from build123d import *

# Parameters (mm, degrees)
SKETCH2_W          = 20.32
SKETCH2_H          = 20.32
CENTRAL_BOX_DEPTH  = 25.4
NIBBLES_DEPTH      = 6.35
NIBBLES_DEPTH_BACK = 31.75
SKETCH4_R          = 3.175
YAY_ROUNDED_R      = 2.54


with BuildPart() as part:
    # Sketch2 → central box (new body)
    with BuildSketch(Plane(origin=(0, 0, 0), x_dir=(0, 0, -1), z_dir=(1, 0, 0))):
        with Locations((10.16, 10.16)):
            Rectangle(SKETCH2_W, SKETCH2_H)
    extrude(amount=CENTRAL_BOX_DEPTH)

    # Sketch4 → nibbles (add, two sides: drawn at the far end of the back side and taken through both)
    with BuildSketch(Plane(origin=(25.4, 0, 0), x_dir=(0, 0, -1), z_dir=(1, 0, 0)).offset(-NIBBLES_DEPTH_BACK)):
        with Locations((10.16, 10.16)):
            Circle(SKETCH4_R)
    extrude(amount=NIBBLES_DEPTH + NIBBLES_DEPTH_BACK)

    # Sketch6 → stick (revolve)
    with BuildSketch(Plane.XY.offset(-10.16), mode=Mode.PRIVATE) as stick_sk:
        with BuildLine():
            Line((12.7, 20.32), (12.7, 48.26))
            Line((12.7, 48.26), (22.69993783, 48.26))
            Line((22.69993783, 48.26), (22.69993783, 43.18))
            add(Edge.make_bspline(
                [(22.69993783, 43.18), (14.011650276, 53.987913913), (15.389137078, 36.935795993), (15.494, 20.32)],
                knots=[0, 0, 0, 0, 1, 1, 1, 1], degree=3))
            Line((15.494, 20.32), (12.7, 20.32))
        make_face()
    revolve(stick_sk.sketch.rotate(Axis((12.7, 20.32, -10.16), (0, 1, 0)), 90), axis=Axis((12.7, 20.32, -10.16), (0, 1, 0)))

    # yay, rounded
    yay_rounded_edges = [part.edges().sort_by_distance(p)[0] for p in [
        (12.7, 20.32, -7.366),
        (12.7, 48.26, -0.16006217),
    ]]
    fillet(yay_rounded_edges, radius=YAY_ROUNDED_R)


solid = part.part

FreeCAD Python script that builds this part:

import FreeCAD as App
import Part
import Sketcher

V = App.Vector
Q = App.Units.Quantity


def edges_at(feature, points):
    """Names of the edges that pass closest to the given points."""
    edges = feature.Shape.Edges
    near = lambda p: min(range(len(edges)), key=lambda i: edges[i].distToShape(Part.Vertex(*p))[0])
    return sorted({f"Edge{near(p) + 1}" for p in points})


def add_polygon(sketch, points):
    """Adds a closed chain of lines whose ends are joined by coincident constraints."""
    first, n = sketch.GeometryCount, len(points)
    for a, b in zip(points, points[1:] + points[:1]):
        sketch.addGeometry(Part.LineSegment(App.Vector(*a, 0), App.Vector(*b, 0)), False)
    for i in range(n):
        sketch.addConstraint(Sketcher.Constraint("Coincident", first + i, 2, first + (i + 1) % n, 1))

doc = App.newDocument("Part")
params = doc.addObject("Spreadsheet::Sheet", "Params")
for row, (alias, value) in enumerate([
    ("sketch1_width", "0.8 in"),
    ("pad1_length", "1 in"),
    ("sketch2_diameter", "0.25 in"),
    ("pad2_length", "0.25 in"),
    ("pad2_length2", "1.25 in"),
    ("sketch3_height", "1.1 in"),
    ("sketch3_width", "0.11 in"),
    ("revolution_angle", "360 deg"),
    ("fillet_radius", "0.1 in"),
], start=1):
    params.set(f"A{row}", alias)
    params.set(f"B{row}", "=" + value)
    params.setAlias(f"B{row}", alias)

body = doc.addObject("PartDesign::Body", "Body")

# Sketch on YZ plane
sketch1 = body.newObject("Sketcher::SketchObject", "Sketch")
sketch1.AttachmentSupport = (doc.getObject("YZ_Plane"), [""])
sketch1.MapMode = "FlatFace"
add_polygon(sketch1, [(20, 0), (0, 0), (0, -20), (20, -20)])  # lines 0-3
sketch1.addConstraint([
    Sketcher.Constraint("Horizontal", 0),
    Sketcher.Constraint("Vertical", 1),
    Sketcher.Constraint("Horizontal", 2),
    Sketcher.Constraint("Vertical", 3),
    Sketcher.Constraint("Coincident", 0, 2, -1, 1),
    Sketcher.Constraint("Equal", 2, 1),
    Sketcher.Constraint("DistanceX", 0, 2, 0, 1, Q("0.8 in")),
])
sketch1.setExpression("Constraints[10]", "Params.sketch1_width")
pad1 = body.newObject("PartDesign::Pad", "Pad")
pad1.Profile = sketch1
pad1.setExpression("Length", "Params.pad1_length")

# Sketch on YZ plane
sketch2 = body.newObject("Sketcher::SketchObject", "Sketch001")
sketch2.AttachmentSupport = (doc.getObject("YZ_Plane"), [""])
sketch2.MapMode = "FlatFace"
sketch2.AttachmentOffset = App.Placement(V(0, 0, 1 * 25.4), App.Rotation())
sketch2.addGeometry(Part.Circle(V(10.2, -10.2, 0), V(0, 0, 1), 3.2), False)
sketch2.addConstraint([
    Sketcher.Constraint("Diameter", 0, Q("0.25 in")),
    Sketcher.Constraint("DistanceX", -1, 1, 0, 3, Q("0.4 in")),
    Sketcher.Constraint("DistanceY", 0, 3, -1, 1, Q("0.4 in")),
])
sketch2.setExpression("Constraints[0]", "Params.sketch2_diameter")
pad2 = body.newObject("PartDesign::Pad", "Pad001")
pad2.Profile = sketch2
pad2.Type = "TwoLengths"
pad2.setExpression("Length", "Params.pad2_length")
pad2.setExpression("Length2", "Params.pad2_length2")

# Sketch on XY plane
sketch3 = body.newObject("Sketcher::SketchObject", "Sketch002")
sketch3.AttachmentSupport = (doc.getObject("XY_Plane"), [""])
sketch3.MapMode = "FlatFace"
sketch3.AttachmentOffset = App.Placement(V(0, 0, -0.4 * 25.4), App.Rotation())
sketch3.addGeometry([
    Part.LineSegment(V(12.7, 48.26, 0), V(12.7, 20.32, 0)),  # 0
    Part.LineSegment(V(12.7, 20.32, 0), V(15.494, 20.32, 0)),  # 1
    Part.BSplineCurve([V(22.699938, 43.18, 0), V(14.01165, 53.987914, 0), V(15.389137, 36.935796, 0), V(15.494, 20.32, 0)], [4, 4], [0, 1], False, 3, [1, 1, 1, 1], False),  # 2
    Part.LineSegment(V(22.699938, 43.18, 0), V(22.699938, 48.26, 0)),  # 3
    Part.LineSegment(V(22.699938, 48.26, 0), V(12.7, 48.26, 0)),  # 4
], False)
sketch3.addGeometry(Part.LineSegment(V(12.7, 20.32, 0), V(12.7, 48.26, 0)), True)  # axis
sketch3.addConstraint([
    Sketcher.Constraint("Block", 2),
    Sketcher.Constraint("Coincident", 0, 2, 1, 1),
    Sketcher.Constraint("Coincident", 1, 2, 2, 2),
    Sketcher.Constraint("Coincident", 2, 1, 3, 1),
    Sketcher.Constraint("Coincident", 3, 2, 4, 1),
    Sketcher.Constraint("Coincident", 4, 2, 0, 1),
    Sketcher.Constraint("Vertical", 0),
    Sketcher.Constraint("Horizontal", 1),
    Sketcher.Constraint("Vertical", 3),
    Sketcher.Constraint("Horizontal", 4),
    Sketcher.Constraint("Vertical", 5),
    Sketcher.Constraint("Coincident", 5, 1, 0, 2),
    Sketcher.Constraint("Horizontal", 3, 2, 5, 2),
    Sketcher.Constraint("DistanceY", 0, 2, 0, 1, Q("1.1 in")),
    Sketcher.Constraint("DistanceX", 1, 1, 1, 2, Q("0.11 in")),
])
sketch3.setExpression("Constraints[13]", "Params.sketch3_height")
sketch3.setExpression("Constraints[14]", "Params.sketch3_width")
revolution = body.newObject("PartDesign::Revolution", "Revolution")
revolution.Profile = sketch3
revolution.ReferenceAxis = (sketch3, ["Axis0"])
revolution.setExpression("Angle", "Params.revolution_angle")
doc.recompute()

fillet = body.newObject("PartDesign::Fillet", "Fillet")
fillet.Base = (revolution, edges_at(revolution, [(12.7, 20.32, -7.366), (12.7, 48.26, -0.16)]))
fillet.setExpression("Radius", "Params.fillet_radius")

doc.recompute()
